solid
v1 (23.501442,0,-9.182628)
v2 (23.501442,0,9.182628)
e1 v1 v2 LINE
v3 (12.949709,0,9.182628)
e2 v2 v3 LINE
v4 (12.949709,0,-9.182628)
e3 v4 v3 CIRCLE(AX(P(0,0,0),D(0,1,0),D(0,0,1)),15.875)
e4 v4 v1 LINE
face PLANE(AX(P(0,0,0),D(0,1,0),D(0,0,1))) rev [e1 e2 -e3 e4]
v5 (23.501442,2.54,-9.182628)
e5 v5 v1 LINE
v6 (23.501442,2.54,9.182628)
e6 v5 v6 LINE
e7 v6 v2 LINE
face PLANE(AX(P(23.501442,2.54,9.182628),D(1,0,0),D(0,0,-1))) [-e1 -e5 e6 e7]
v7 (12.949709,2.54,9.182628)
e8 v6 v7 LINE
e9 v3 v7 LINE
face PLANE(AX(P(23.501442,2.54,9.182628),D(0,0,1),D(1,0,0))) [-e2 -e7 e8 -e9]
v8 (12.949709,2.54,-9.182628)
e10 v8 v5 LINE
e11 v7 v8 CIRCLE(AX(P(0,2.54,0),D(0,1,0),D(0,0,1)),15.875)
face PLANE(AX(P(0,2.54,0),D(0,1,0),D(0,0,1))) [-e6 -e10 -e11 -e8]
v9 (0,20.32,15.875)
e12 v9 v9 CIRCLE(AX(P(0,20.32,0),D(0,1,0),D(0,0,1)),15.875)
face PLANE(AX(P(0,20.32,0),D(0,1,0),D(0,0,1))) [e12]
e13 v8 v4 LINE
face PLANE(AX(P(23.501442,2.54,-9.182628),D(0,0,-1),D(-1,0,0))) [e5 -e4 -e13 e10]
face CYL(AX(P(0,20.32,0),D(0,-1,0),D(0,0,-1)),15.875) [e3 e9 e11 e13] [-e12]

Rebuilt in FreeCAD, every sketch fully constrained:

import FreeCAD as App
import Part
import Sketcher
from FreeCAD import Vector
Q = App.Units.Quantity

doc = App.newDocument("Part")
body = doc.addObject("PartDesign::Body", "Body")

# Sketch on XZ plane
sketch1 = doc.addObject("Sketcher::SketchObject", "Sketch")
body.addObject(sketch1)
sketch1.AttachmentSupport = (doc.XZ_Plane, [""])
sketch1.MapMode = "FlatFace"
sketch1.addGeometry(Part.Circle(Vector(0, 0, 0), Vector(0, 0, 1), 16), False)
sketch1.addConstraint(Sketcher.Constraint("Coincident", 0, 3, -1, 1))
sketch1.addConstraint(Sketcher.Constraint("Diameter", 0, Q("1.25 in")))
pad1 = doc.addObject("PartDesign::Pad", "Pad")
body.addObject(pad1)
pad1.Profile = sketch1
pad1.Length = Q("0.8 in")
pad1.Reversed = True

# Sketch on XZ plane
sketch2 = doc.addObject("Sketcher::SketchObject", "Sketch001")
body.addObject(sketch2)
sketch2.AttachmentSupport = (doc.XZ_Plane, [""])
sketch2.MapMode = "FlatFace"
sketch2.addGeometry(Part.LineSegment(Vector(8, 9, 0), Vector(8, -9, 0)), False)
sketch2.addGeometry(Part.LineSegment(Vector(8, -9, 0), Vector(24, -9, 0)), False)
sketch2.addGeometry(Part.LineSegment(Vector(24, -9, 0), Vector(24, 9, 0)), False)
sketch2.addGeometry(Part.LineSegment(Vector(24, 9, 0), Vector(8, 9, 0)), False)
sketch2.addConstraint(Sketcher.Constraint("Coincident", 0, 2, 1, 1))
sketch2.addConstraint(Sketcher.Constraint("Coincident", 1, 2, 2, 1))
sketch2.addConstraint(Sketcher.Constraint("Coincident", 2, 2, 3, 1))
sketch2.addConstraint(Sketcher.Constraint("Coincident", 3, 2, 0, 1))
sketch2.addConstraint(Sketcher.Constraint("Vertical", 0))
sketch2.addConstraint(Sketcher.Constraint("Horizontal", 1))
sketch2.addConstraint(Sketcher.Constraint("Vertical", 2))
sketch2.addConstraint(Sketcher.Constraint("Horizontal", 3))
sketch2.addConstraint(Sketcher.Constraint("DistanceX", 1, 1, 1, 2, Q("15.252884 mm")))
sketch2.addConstraint(Sketcher.Constraint("DistanceY", 0, 2, 0, 1, Q("18.365256 mm")))
sketch2.addConstraint(Sketcher.Constraint("DistanceY", 0, 2, -1, 1, Q("9.182628 mm")))
sketch2.addConstraint(Sketcher.Constraint("DistanceX", -1, 1, 0, 2, Q("8.248558 mm")))
pad2 = doc.addObject("PartDesign::Pad", "Pad001")
body.addObject(pad2)
pad2.Profile = sketch2
pad2.Length = Q("0.1 in")
pad2.Reversed = True

doc.recompute()
